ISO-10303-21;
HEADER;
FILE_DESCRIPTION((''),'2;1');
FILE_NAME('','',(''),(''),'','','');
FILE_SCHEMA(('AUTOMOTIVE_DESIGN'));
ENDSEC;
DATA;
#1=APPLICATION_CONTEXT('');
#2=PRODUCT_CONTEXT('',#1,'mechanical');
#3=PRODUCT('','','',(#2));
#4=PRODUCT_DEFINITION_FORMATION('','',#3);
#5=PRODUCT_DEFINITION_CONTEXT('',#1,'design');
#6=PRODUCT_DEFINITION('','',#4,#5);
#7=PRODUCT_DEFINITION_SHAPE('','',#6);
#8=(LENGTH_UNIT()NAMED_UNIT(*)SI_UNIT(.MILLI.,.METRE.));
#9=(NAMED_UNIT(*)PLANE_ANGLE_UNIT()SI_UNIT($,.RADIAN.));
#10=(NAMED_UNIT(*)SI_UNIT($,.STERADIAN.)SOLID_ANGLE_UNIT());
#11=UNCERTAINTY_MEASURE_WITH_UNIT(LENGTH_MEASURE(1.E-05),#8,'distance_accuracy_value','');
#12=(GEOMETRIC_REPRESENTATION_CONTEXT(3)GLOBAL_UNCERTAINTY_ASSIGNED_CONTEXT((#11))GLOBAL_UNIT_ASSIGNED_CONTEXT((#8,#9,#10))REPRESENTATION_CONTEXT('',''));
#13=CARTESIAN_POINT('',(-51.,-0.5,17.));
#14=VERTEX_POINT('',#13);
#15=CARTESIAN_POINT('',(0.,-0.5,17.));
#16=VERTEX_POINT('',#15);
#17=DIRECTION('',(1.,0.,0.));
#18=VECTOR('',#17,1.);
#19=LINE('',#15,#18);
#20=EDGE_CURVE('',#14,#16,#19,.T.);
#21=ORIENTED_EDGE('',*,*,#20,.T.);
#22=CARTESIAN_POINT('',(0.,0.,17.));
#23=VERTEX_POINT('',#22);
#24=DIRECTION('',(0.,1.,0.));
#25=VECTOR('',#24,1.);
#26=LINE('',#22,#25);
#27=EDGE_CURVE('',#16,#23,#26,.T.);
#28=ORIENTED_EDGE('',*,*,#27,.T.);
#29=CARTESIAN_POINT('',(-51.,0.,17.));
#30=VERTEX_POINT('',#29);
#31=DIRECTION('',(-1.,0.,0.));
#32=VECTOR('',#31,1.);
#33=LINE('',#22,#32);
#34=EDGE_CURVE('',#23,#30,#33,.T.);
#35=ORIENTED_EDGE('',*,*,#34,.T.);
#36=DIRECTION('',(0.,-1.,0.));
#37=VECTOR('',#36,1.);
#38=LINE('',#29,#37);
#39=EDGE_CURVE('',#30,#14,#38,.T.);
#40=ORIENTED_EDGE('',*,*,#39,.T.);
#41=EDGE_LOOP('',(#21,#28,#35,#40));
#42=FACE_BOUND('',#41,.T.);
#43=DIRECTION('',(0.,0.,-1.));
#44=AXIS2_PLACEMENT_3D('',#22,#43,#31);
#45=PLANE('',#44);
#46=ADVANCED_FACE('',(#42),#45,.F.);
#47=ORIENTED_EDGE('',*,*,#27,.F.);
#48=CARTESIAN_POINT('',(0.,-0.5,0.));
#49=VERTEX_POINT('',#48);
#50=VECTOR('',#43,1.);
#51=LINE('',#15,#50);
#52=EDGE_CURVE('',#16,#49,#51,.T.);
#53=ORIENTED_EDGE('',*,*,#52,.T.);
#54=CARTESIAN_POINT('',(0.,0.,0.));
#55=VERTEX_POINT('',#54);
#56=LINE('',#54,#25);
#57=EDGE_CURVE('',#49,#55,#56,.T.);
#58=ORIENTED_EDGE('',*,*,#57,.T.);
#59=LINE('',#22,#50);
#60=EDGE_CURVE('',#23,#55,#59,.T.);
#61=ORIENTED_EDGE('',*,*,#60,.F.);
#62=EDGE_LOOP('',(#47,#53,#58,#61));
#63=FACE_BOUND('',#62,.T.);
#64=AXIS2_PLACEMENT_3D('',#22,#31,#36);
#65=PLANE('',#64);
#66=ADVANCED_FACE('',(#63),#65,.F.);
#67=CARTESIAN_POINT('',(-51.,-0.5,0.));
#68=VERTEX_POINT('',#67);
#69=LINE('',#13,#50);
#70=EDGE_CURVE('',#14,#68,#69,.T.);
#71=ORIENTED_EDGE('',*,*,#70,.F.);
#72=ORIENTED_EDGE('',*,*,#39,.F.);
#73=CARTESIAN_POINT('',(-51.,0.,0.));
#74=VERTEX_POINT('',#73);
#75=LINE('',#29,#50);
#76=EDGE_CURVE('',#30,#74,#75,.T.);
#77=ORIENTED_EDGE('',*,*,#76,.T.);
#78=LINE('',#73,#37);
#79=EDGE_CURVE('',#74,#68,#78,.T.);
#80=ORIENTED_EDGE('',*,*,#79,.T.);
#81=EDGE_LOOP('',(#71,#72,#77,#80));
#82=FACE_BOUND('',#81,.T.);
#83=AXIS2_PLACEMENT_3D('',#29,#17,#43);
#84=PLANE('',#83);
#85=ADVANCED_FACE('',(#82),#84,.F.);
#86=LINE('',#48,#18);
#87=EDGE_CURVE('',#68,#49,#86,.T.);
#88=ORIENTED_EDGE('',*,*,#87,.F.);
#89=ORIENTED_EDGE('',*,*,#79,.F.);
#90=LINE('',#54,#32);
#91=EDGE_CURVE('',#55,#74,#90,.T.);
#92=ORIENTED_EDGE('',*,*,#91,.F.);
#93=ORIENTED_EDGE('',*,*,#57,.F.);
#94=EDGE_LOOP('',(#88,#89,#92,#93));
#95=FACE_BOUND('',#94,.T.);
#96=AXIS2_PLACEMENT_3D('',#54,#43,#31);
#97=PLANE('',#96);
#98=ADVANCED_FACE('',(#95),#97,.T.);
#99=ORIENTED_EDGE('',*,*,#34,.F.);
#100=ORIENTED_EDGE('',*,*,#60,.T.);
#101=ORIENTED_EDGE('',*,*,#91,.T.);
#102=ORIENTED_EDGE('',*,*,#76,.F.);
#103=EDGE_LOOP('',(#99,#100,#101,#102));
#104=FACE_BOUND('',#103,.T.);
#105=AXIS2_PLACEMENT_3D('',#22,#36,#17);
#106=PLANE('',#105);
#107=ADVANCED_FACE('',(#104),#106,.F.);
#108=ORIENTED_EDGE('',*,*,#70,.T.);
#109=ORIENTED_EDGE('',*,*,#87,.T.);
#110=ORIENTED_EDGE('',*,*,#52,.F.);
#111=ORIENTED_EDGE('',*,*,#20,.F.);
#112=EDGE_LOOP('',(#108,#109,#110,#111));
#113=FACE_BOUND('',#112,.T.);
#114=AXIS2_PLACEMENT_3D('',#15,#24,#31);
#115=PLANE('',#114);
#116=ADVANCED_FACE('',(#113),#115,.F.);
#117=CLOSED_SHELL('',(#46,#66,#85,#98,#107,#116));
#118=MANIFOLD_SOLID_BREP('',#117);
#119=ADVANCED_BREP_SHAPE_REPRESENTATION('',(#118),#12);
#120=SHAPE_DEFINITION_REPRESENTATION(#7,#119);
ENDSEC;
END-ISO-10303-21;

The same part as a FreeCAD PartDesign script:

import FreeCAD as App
import Part
import Sketcher
from FreeCAD import Vector


def add_polygon(sketch, points):
    """Adds a closed chain of lines whose ends are joined by coincident constraints."""
    first, n = sketch.GeometryCount, len(points)
    for a, b in zip(points, points[1:] + points[:1]):
        sketch.addGeometry(Part.LineSegment(App.Vector(*a, 0), App.Vector(*b, 0)), False)
    for i in range(n):
        sketch.addConstraint(Sketcher.Constraint("Coincident", first + i, 2, first + (i + 1) % n, 1))

doc = App.newDocument("Part")
body = doc.addObject("PartDesign::Body", "Body")

sketch1 = body.newObject("Sketcher::SketchObject", "Sketch")
sketch1.AttachmentSupport = (doc.getObject("XY_Plane"), [""])
sketch1.MapMode = "FlatFace"
add_polygon(sketch1, [(-51, 0), (-51, -0.5), (0, -0.5), (0, 0)])
sketch1.addConstraint(Sketcher.Constraint("Vertical", 0))
sketch1.addConstraint(Sketcher.Constraint("Horizontal", 1))
sketch1.addConstraint(Sketcher.Constraint("Vertical", 2))
sketch1.addConstraint(Sketcher.Constraint("Horizontal", 3))
sketch1.addConstraint(Sketcher.Constraint("Coincident", 2, 2, -1, 1))
sketch1.addConstraint(Sketcher.Constraint("DistanceX", 1, 1, 1, 2, 51.0))
sketch1.addConstraint(Sketcher.Constraint("DistanceY", 0, 2, 0, 1, 0.5))
pad1 = body.newObject("PartDesign::Pad", "Pad")
pad1.Profile = sketch1
pad1.Length = 17

doc.recompute()
